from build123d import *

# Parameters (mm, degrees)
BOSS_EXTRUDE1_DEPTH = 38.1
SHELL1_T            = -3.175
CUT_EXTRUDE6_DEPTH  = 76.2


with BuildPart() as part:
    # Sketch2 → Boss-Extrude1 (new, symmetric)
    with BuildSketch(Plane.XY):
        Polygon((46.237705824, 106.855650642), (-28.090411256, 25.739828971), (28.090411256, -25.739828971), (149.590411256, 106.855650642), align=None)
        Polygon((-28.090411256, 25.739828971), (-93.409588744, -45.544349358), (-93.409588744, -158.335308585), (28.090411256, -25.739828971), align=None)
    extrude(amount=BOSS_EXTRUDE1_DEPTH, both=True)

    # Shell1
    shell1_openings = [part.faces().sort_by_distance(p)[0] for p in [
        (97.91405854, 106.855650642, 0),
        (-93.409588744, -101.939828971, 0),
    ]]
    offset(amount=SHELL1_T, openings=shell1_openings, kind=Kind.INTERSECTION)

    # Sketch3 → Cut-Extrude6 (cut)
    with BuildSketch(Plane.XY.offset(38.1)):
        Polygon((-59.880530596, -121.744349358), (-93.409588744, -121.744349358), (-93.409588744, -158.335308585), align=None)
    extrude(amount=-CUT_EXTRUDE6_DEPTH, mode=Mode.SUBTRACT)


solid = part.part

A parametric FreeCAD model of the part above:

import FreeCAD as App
import Part
import Sketcher

V = App.Vector
Q = App.Units.Quantity


def faces_at(feature, points):
    """Names of the faces that lie closest to the given points."""
    faces = feature.Shape.Faces
    near = lambda p: min(range(len(faces)), key=lambda i: faces[i].distToShape(Part.Vertex(*p))[0])
    return sorted({f"Face{near(p) + 1}" for p in points})


def add_polygon(sketch, points):
    """Adds a closed chain of lines whose ends are joined by coincident constraints."""
    first, n = sketch.GeometryCount, len(points)
    for a, b in zip(points, points[1:] + points[:1]):
        sketch.addGeometry(Part.LineSegment(App.Vector(*a, 0), App.Vector(*b, 0)), False)
    for i in range(n):
        sketch.addConstraint(Sketcher.Constraint("Coincident", first + i, 2, first + (i + 1) % n, 1))

doc = App.newDocument("Part")
body = doc.addObject("PartDesign::Body", "Body")

sketch1 = doc.addObject("Sketcher::SketchObject", "Sketch")
body.addObject(sketch1)
sketch1.AttachmentSupport = (doc.XY_Plane, [""])
sketch1.MapMode = "FlatFace"
add_polygon(sketch1, [(46, 107), (-28, 26), (-93, -46), (-93, -158), (28, -26), (150, 107)])
sketch1.addConstraint(Sketcher.Constraint("Vertical", 2))
sketch1.addConstraint(Sketcher.Constraint("Horizontal", 5))
sketch1.addConstraint(Sketcher.Constraint("Symmetric", 0, 2, 3, 2, -1, 1))
sketch1.addConstraint(Sketcher.Constraint("Parallel", 0, 1))
sketch1.addConstraint(Sketcher.Constraint("Parallel", 1, 3))
sketch1.addConstraint(Sketcher.Constraint("Parallel", 3, 4))
sketch1.addConstraint(Sketcher.Constraint("Equal", 3, 4))
sketch1.addConstraint(Sketcher.Constraint("DistanceY", 1, 2, 4, 2, Q("6 in")))
sketch1.addConstraint(Sketcher.Constraint("DistanceY", 2, 2, 2, 1, 112.790959))
sketch1.addConstraint(Sketcher.Constraint("DistanceX", 1, 2, 3, 2, 121.5))
sketch1.addConstraint(Sketcher.Constraint("DistanceX", 0, 2, -1, 1, 28.090411))
pad1 = doc.addObject("PartDesign::Pad", "Pad")
body.addObject(pad1)
pad1.Profile = sketch1
pad1.Length = Q("3 in")
pad1.Midplane = True
doc.recompute()

thickness = doc.addObject("PartDesign::Thickness", "Thickness")
body.addObject(thickness)
thickness.Base = (pad1, faces_at(pad1, [(97.914, 106.856, 0), (-93.41, -101.94, 0)]))
thickness.Value = Q("0.125 in")
thickness.Reversed = True
thickness.Join = "Intersection"

sketch2 = doc.addObject("Sketcher::SketchObject", "Sketch001")
body.addObject(sketch2)
sketch2.AttachmentSupport = (doc.XY_Plane, [""])
sketch2.MapMode = "FlatFace"
sketch2.AttachmentOffset = App.Placement(V(0, 0, 1.5 * 25.4), App.Rotation())
add_polygon(sketch2, [(-60, -122), (-93, -122), (-93, -158)])
sketch2.addConstraint(Sketcher.Constraint("Horizontal", 0))
sketch2.addConstraint(Sketcher.Constraint("Vertical", 1))
sketch2.addConstraint(Sketcher.Constraint("DistanceX", 0, 2, 0, 1, 33.529058))
sketch2.addConstraint(Sketcher.Constraint("DistanceY", 1, 2, 1, 1, 36.590959))
sketch2.addConstraint(Sketcher.Constraint("DistanceX", 0, 2, -1, 1, 93.409589))
sketch2.addConstraint(Sketcher.Constraint("DistanceY", 0, 2, -1, 1, 121.744349))
pocket1 = doc.addObject("PartDesign::Pocket", "Pocket")
body.addObject(pocket1)
pocket1.Profile = sketch2
pocket1.Length = Q("3 in")

doc.recompute()
